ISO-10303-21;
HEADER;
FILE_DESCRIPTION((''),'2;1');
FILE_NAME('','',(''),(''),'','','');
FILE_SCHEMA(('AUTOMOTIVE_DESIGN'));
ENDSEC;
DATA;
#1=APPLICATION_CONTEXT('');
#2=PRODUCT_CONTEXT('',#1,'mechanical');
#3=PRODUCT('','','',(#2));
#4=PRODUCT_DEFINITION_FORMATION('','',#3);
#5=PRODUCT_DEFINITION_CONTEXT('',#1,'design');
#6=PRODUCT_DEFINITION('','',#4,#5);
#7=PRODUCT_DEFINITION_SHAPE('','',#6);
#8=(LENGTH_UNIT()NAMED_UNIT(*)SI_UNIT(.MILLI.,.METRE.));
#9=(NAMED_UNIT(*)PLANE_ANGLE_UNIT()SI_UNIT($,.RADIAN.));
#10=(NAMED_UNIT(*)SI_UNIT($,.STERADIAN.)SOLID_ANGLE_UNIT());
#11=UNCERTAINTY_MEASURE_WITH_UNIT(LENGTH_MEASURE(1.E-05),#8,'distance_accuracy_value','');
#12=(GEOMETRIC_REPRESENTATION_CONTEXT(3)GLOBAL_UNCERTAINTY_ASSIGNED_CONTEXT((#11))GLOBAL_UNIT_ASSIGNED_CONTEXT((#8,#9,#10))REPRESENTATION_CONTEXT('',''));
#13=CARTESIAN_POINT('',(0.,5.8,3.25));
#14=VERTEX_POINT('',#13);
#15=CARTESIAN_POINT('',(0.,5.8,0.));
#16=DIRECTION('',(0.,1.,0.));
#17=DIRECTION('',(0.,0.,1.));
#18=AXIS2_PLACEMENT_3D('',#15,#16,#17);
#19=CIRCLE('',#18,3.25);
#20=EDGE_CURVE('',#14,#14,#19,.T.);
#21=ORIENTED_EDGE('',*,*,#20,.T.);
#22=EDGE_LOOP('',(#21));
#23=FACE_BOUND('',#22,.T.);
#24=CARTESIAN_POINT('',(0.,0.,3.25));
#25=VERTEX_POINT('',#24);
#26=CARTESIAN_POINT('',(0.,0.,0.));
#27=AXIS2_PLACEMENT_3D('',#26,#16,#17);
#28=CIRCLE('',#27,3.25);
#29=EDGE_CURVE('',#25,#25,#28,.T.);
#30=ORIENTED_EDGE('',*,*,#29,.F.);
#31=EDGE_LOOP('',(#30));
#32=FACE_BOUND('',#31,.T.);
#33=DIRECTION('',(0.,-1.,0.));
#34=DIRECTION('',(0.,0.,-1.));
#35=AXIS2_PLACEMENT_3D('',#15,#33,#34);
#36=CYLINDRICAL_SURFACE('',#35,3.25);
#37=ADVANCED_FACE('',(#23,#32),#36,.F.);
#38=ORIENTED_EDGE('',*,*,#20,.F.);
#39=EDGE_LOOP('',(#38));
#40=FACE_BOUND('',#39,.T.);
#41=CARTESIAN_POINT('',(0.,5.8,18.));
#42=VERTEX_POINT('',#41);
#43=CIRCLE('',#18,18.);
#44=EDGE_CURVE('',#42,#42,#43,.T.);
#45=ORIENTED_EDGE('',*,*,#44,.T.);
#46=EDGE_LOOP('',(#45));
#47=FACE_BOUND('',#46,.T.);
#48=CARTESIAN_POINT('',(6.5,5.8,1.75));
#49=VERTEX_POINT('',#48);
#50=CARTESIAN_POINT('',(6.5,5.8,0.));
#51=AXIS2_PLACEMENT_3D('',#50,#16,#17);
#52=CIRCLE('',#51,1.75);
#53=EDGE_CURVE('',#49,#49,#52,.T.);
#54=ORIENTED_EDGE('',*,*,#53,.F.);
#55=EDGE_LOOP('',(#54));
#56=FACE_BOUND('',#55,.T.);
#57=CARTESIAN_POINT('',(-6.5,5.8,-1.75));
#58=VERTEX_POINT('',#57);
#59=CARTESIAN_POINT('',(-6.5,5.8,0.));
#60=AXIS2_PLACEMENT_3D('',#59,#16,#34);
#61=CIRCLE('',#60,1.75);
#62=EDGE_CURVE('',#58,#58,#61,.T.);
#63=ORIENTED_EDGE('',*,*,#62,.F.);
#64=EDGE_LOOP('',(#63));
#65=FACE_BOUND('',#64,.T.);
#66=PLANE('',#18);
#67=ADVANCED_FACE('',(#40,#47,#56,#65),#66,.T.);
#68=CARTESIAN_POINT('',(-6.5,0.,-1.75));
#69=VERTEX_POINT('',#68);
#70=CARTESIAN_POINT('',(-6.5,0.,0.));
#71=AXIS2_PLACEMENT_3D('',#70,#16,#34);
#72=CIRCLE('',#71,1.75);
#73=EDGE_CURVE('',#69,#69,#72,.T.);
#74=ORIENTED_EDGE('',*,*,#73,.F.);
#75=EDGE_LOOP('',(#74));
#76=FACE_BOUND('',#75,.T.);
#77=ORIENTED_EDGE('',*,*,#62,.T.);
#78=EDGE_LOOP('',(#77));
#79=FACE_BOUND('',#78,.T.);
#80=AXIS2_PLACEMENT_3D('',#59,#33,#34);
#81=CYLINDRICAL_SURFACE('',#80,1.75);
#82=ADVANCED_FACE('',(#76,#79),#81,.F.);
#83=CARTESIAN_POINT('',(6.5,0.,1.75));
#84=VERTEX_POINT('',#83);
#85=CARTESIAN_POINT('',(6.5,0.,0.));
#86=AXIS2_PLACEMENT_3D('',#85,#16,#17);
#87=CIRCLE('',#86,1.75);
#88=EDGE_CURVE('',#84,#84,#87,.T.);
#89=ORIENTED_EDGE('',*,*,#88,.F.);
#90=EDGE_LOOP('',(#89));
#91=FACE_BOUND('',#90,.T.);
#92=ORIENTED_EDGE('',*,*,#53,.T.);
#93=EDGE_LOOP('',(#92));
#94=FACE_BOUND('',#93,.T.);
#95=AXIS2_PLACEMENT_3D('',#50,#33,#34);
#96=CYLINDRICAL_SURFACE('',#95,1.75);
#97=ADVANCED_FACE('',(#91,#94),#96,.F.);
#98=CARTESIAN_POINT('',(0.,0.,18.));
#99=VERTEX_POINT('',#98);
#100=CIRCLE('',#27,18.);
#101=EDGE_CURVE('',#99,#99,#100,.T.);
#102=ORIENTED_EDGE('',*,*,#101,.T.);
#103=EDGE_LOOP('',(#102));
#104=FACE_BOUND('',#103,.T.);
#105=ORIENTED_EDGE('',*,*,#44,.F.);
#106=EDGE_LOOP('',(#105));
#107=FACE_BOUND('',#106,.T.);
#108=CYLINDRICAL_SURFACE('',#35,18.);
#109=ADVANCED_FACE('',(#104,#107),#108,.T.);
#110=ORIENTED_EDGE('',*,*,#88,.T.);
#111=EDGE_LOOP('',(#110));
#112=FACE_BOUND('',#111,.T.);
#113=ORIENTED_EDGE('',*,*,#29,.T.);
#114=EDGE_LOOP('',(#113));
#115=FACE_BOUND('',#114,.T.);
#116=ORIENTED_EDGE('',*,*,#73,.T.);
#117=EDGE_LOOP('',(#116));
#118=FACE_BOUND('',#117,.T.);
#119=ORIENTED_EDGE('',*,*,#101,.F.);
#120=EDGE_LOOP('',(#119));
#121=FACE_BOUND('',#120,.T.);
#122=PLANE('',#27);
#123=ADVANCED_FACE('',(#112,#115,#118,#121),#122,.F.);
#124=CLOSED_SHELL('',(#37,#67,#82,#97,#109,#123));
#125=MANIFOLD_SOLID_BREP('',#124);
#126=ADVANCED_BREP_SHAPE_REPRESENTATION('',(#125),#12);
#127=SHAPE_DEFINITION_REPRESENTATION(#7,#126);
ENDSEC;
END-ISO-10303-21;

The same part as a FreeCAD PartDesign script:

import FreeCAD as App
import Part
import Sketcher

V = App.Vector

doc = App.newDocument("Part")
body = doc.addObject("PartDesign::Body", "Body")

sketch1 = body.newObject("Sketcher::SketchObject", "Sketch")
sketch1.AttachmentSupport = (doc.getObject("XZ_Plane"), [""])
sketch1.MapMode = "FlatFace"
sketch1.addGeometry(Part.Circle(V(0, 0, 0), V(0, 0, 1), 18), False)
sketch1.addGeometry(Part.Circle(V(-6.5, 0, 0), V(0, 0, 1), 1.8), False)
sketch1.addGeometry(Part.Circle(V(6.5, 0, 0), V(0, 0, 1), 1.8), False)
sketch1.addGeometry(Part.Circle(V(0, 0, 0), V(0, 0, 1), 3.2), False)
sketch1.addConstraint(Sketcher.Constraint("Coincident", 0, 3, -1, 1))
sketch1.addConstraint(Sketcher.Constraint("Coincident", 3, 3, -1, 1))
sketch1.addConstraint(Sketcher.Constraint("Equal", 1, 2))
sketch1.addConstraint(Sketcher.Constraint("Symmetric", 1, 3, 2, 3, -1, 1))
sketch1.addConstraint(Sketcher.Constraint("PointOnObject", 1, 3, -1))
sketch1.addConstraint(Sketcher.Constraint("Diameter", 0, 36.0))
sketch1.addConstraint(Sketcher.Constraint("Diameter", 1, 3.5))
sketch1.addConstraint(Sketcher.Constraint("Diameter", 3, 6.5))
sketch1.addConstraint(Sketcher.Constraint("DistanceX", 1, 3, 2, 3, 13.0))
pad1 = body.newObject("PartDesign::Pad", "Pad")
pad1.Profile = sketch1
pad1.Length = 5.8
pad1.Reversed = True

doc.recompute()
